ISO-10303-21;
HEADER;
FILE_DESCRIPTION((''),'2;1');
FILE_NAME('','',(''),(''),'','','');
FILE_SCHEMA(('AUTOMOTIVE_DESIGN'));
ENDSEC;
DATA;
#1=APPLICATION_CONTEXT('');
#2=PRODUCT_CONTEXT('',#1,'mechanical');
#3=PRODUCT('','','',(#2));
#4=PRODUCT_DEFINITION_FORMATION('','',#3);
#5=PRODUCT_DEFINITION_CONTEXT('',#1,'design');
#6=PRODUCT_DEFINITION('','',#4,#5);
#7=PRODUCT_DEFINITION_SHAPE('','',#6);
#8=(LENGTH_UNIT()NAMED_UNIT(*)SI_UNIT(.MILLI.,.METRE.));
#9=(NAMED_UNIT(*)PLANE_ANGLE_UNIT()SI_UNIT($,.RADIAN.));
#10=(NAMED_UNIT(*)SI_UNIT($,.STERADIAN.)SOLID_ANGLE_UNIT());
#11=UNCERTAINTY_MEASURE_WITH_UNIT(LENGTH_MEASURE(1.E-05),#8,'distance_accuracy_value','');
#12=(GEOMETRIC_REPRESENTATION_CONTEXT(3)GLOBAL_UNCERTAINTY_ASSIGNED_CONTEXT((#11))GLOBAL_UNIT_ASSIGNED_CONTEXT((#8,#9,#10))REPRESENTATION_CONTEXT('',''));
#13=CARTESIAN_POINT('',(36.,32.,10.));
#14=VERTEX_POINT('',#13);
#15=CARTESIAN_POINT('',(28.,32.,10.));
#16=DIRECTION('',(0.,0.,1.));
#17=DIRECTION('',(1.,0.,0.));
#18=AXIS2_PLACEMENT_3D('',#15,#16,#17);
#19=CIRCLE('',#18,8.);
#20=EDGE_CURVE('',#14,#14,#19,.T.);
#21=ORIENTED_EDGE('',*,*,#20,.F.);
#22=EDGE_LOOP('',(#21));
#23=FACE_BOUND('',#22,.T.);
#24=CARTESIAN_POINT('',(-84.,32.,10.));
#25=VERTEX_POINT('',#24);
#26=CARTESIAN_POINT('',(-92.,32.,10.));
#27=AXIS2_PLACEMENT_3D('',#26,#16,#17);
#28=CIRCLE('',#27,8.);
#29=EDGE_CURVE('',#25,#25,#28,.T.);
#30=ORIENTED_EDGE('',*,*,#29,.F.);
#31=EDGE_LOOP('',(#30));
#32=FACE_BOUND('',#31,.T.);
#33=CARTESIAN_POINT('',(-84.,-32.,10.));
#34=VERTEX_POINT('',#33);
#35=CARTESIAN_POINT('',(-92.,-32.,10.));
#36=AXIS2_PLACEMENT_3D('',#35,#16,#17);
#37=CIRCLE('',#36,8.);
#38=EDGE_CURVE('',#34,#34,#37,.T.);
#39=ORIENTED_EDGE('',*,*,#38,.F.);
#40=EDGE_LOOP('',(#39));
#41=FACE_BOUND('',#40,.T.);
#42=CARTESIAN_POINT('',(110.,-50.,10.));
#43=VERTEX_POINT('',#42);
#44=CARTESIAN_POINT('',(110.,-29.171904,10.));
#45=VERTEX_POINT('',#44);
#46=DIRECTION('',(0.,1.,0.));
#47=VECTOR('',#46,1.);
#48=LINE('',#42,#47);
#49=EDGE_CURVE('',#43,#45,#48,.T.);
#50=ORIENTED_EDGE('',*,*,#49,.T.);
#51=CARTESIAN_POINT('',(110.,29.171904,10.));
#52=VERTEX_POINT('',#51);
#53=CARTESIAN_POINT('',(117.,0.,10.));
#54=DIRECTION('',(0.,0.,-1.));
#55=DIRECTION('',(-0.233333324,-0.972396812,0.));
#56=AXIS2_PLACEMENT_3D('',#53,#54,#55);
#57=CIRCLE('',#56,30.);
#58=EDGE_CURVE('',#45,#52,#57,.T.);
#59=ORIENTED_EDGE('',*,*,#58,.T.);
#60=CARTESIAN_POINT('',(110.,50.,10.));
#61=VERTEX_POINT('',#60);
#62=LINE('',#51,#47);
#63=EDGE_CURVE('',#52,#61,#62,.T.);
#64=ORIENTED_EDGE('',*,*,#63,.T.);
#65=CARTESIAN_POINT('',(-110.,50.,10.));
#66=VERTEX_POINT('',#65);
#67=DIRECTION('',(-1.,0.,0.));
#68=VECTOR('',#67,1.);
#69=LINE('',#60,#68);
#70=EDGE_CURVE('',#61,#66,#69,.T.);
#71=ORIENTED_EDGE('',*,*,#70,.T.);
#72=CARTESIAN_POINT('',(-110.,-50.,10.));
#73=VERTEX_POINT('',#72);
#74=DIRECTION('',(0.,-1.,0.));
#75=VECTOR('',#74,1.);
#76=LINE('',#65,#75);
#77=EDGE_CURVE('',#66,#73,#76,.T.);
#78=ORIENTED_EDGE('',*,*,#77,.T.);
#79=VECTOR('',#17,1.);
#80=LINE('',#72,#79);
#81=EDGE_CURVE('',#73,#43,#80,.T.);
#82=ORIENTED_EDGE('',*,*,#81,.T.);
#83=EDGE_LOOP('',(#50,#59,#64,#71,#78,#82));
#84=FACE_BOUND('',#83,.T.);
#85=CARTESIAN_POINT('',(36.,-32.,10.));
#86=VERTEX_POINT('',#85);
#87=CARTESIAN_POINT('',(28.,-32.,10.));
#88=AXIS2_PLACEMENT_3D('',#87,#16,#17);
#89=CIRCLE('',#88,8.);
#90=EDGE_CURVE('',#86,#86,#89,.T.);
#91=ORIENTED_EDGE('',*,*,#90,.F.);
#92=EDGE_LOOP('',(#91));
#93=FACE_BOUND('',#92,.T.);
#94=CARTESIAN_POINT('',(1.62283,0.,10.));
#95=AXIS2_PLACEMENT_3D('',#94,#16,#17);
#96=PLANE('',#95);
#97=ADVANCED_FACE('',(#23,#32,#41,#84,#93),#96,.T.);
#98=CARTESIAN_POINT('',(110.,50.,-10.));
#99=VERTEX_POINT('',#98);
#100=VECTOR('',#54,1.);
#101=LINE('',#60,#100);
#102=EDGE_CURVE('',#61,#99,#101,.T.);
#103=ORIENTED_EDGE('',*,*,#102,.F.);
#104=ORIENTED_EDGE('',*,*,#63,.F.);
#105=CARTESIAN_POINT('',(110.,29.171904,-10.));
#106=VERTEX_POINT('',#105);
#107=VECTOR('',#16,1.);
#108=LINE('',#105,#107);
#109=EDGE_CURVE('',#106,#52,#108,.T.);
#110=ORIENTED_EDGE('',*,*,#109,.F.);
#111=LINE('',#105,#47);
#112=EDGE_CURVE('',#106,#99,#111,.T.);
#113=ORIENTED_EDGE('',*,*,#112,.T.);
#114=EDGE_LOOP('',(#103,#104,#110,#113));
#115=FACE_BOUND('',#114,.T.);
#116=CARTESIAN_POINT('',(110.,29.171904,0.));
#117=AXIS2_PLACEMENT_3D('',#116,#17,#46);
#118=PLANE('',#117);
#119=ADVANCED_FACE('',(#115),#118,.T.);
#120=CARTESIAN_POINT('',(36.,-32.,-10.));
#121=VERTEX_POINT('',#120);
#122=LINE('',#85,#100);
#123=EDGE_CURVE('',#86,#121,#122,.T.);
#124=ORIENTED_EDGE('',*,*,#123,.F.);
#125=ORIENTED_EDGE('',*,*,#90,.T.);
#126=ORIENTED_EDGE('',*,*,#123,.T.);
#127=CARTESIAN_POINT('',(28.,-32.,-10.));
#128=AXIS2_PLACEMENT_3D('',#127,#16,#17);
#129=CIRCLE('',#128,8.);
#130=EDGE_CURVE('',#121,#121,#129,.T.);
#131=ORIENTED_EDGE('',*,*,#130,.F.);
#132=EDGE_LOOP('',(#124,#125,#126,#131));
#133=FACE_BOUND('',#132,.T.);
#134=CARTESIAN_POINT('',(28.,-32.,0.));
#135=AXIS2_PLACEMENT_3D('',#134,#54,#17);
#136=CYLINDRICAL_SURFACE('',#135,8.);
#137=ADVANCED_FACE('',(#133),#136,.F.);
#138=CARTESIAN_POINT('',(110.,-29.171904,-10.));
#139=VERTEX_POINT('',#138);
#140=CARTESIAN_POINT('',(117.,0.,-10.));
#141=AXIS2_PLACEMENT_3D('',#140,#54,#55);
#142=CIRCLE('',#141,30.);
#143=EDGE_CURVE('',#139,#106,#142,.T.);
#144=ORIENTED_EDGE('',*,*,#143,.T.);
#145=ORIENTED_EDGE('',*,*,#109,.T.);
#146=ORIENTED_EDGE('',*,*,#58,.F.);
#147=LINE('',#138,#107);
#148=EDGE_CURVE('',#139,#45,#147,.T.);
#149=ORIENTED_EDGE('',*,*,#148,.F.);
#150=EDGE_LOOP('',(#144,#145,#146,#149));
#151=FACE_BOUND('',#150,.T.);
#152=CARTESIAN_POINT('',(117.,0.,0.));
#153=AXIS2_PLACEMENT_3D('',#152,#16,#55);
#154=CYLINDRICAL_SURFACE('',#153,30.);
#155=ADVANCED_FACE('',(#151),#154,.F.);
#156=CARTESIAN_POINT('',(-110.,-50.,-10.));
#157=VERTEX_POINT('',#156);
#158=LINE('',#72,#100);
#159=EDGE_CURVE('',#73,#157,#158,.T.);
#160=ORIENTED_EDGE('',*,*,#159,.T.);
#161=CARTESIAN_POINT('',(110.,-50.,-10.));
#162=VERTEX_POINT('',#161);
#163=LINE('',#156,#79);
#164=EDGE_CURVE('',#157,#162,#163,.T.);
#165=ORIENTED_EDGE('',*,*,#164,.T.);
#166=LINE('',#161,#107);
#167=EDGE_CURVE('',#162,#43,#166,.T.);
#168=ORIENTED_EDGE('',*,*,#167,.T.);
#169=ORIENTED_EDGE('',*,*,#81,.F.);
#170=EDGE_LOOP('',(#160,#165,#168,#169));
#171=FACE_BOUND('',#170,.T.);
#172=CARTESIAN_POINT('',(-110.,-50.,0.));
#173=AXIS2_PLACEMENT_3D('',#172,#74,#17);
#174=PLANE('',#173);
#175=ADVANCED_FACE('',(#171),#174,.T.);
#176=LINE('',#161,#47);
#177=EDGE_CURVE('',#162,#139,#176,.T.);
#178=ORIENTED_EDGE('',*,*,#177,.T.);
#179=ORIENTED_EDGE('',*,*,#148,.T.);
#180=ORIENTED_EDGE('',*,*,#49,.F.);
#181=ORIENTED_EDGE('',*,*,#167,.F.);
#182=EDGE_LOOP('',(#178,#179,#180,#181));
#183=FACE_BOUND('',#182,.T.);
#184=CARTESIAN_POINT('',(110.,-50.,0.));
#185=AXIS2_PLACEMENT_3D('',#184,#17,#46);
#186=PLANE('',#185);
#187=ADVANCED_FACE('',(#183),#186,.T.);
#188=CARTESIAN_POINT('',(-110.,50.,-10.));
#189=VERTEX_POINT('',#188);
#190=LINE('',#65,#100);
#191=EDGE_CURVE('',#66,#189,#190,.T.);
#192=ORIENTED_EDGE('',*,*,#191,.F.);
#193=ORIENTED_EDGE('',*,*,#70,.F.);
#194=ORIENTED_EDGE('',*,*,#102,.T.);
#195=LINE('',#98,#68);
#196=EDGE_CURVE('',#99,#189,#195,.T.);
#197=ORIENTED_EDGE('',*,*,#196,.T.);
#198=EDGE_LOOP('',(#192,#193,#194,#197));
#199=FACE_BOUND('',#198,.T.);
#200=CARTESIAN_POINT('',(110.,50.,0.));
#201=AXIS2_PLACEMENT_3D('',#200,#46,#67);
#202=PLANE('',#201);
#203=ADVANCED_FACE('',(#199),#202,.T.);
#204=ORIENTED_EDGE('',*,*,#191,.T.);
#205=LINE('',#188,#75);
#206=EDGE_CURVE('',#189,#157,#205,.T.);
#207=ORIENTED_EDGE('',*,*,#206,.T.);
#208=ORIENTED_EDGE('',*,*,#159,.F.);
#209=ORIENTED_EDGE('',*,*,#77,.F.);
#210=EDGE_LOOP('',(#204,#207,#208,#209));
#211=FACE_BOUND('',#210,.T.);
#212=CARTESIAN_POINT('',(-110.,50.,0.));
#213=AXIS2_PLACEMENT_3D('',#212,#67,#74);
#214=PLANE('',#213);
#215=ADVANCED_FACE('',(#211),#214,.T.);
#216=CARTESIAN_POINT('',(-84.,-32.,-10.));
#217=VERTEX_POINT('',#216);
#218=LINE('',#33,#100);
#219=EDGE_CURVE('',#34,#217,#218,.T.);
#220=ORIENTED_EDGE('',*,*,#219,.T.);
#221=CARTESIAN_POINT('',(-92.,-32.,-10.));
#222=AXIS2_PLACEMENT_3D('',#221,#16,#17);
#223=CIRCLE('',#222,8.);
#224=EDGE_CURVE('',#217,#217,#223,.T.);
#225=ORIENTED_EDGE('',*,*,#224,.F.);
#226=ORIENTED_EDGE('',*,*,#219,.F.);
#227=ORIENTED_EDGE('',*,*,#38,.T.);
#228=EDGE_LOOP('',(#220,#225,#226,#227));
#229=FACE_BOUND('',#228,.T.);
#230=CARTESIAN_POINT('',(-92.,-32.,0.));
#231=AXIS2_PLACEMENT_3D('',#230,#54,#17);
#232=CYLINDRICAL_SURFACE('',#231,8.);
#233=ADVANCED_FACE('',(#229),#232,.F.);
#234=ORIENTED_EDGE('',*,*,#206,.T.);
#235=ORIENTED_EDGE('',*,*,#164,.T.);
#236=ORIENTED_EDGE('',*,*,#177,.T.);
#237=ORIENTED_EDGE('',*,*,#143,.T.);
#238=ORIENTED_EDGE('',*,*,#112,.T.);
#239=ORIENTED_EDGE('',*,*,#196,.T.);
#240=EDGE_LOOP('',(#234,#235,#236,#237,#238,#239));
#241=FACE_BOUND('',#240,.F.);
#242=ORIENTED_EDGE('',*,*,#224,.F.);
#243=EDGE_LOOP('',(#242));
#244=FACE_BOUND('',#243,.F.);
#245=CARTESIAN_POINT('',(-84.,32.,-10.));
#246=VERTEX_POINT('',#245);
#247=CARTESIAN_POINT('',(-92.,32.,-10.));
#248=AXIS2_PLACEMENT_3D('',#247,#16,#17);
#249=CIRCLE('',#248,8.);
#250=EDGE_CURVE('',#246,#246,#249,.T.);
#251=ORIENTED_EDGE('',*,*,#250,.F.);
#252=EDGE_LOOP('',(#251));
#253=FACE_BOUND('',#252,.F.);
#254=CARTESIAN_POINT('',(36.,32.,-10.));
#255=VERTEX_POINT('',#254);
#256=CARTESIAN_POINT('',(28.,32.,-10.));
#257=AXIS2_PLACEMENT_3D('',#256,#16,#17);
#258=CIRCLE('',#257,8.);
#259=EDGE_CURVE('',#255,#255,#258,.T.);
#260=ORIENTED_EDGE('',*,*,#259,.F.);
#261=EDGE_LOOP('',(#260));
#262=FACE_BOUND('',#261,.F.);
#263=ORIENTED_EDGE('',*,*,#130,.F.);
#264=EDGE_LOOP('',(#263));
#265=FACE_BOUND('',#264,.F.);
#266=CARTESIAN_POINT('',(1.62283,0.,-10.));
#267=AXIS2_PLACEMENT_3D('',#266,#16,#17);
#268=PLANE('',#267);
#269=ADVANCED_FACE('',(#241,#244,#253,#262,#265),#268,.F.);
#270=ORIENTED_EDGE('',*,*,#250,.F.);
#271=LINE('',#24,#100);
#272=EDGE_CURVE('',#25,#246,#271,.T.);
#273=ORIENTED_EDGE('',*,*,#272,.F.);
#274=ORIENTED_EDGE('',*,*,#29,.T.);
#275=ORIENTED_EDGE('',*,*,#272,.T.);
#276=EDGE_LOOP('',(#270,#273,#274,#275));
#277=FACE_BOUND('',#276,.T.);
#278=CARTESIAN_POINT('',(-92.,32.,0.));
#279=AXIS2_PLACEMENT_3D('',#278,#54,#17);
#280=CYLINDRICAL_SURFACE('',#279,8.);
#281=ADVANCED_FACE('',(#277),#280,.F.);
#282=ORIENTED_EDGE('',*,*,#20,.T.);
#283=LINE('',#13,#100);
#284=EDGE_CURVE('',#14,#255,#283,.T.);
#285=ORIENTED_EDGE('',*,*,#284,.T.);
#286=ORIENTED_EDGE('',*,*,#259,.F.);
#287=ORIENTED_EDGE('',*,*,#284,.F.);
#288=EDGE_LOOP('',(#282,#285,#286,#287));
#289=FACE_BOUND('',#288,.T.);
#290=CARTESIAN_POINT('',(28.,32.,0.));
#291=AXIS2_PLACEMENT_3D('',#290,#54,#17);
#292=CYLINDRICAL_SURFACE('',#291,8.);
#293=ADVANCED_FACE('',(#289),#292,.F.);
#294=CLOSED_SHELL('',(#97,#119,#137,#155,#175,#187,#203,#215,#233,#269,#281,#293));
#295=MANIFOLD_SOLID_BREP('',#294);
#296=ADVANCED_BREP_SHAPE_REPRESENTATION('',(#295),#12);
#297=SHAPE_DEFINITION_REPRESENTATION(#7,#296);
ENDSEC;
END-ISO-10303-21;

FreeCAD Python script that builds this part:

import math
import FreeCAD as App
import Part
import Sketcher

V = App.Vector

doc = App.newDocument("Part")
params = doc.addObject("Spreadsheet::Sheet", "Params")
for row, (alias, value) in enumerate([
    ("sketch1_diameter", "16 mm"),
    ("sketch1_radius", "30 mm"),
    ("sketch1_width", "220 mm"),
    ("sketch1_height", "100 mm"),
    ("pad1_length", "20 mm"),
], start=1):
    params.set(f"A{row}", alias)
    params.set(f"B{row}", "=" + value)
    params.setAlias(f"B{row}", alias)

body = doc.addObject("PartDesign::Body", "Body")

# Sketch on XY plane
sketch1 = body.newObject("Sketcher::SketchObject", "Sketch")
sketch1.AttachmentSupport = (doc.getObject("XY_Plane"), [""])
sketch1.MapMode = "FlatFace"
sketch1.addGeometry([
    Part.LineSegment(V(-110, -50, 0), V(110, -50, 0)),  # 0
    Part.LineSegment(V(110, -50, 0), V(110, -29, 0)),  # 1
    Part.ArcOfCircle(Part.Circle(V(117, 0, 0), V(0, 0, 1), 30), math.radians(103), math.radians(257)),  # 2
    Part.LineSegment(V(110, 29, 0), V(110, 50, 0)),  # 3
    Part.LineSegment(V(110, 50, 0), V(-110, 50, 0)),  # 4
    Part.LineSegment(V(-110, 50, 0), V(-110, -50, 0)),  # 5
    Part.Circle(V(-92, -32, 0), V(0, 0, 1), 8),  # 6
    Part.Circle(V(28, -32, 0), V(0, 0, 1), 8),  # 7
    Part.Circle(V(-92, 32, 0), V(0, 0, 1), 8),  # 8
    Part.Circle(V(28, 32, 0), V(0, 0, 1), 8),  # 9
], False)
sketch1.addConstraint([
    Sketcher.Constraint("Coincident", 0, 2, 1, 1),
    Sketcher.Constraint("Coincident", 1, 2, 2, 2),
    Sketcher.Constraint("Coincident", 2, 1, 3, 1),
    Sketcher.Constraint("Coincident", 3, 2, 4, 1),
    Sketcher.Constraint("Coincident", 4, 2, 5, 1),
    Sketcher.Constraint("Coincident", 5, 2, 0, 1),
    Sketcher.Constraint("Horizontal", 0),
    Sketcher.Constraint("Vertical", 1),
    Sketcher.Constraint("Vertical", 3),
    Sketcher.Constraint("Horizontal", 4),
    Sketcher.Constraint("Vertical", 5),
    Sketcher.Constraint("Equal", 6, 7),
    Sketcher.Constraint("Equal", 7, 8),
    Sketcher.Constraint("Equal", 8, 9),
    Sketcher.Constraint("Symmetric", 0, 2, 4, 2, -1, 1),
    Sketcher.Constraint("Symmetric", 6, 3, 8, 3, -1),
    Sketcher.Constraint("Symmetric", 7, 3, 9, 3, -1),
    Sketcher.Constraint("Symmetric", 1, 2, 2, 1, -1),
    Sketcher.Constraint("Horizontal", 6, 3, 7, 3),
    Sketcher.Constraint("Diameter", 6, 16.0),
    Sketcher.Constraint("Radius", 2, 30.0),
    Sketcher.Constraint("DistanceX", 0, 1, 0, 2, 220.0),
    Sketcher.Constraint("DistanceY", 5, 2, 5, 1, 100.0),
    Sketcher.Constraint("DistanceX", -1, 1, 2, 3, 117.0),
    Sketcher.Constraint("DistanceX", 6, 3, -1, 1, 92.0),
    Sketcher.Constraint("DistanceY", 6, 3, -1, 1, 32.0),
    Sketcher.Constraint("DistanceX", -1, 1, 7, 3, 28.0),
])
sketch1.setExpression("Constraints[19]", "Params.sketch1_diameter")
sketch1.setExpression("Constraints[20]", "Params.sketch1_radius")
sketch1.setExpression("Constraints[21]", "Params.sketch1_width")
sketch1.setExpression("Constraints[22]", "Params.sketch1_height")
pad1 = body.newObject("PartDesign::Pad", "Pad")
pad1.Profile = sketch1
pad1.setExpression("Length", "Params.pad1_length")
pad1.Midplane = True

doc.recompute()
